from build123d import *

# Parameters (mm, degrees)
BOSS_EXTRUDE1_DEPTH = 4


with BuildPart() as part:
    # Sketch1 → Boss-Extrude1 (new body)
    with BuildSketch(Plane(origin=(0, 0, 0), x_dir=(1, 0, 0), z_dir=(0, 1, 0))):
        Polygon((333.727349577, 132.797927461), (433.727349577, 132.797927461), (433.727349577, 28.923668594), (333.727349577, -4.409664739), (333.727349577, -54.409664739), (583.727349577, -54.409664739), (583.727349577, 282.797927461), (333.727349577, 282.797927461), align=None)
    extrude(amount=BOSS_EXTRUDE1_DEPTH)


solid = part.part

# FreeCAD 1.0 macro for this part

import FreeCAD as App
import Part
import Sketcher

V = App.Vector

doc = App.newDocument("Part")
body = doc.addObject("PartDesign::Body", "Body")

sketch1 = body.newObject("Sketcher::SketchObject", "Sketch")
sketch1.AttachmentSupport = (doc.getObject("XZ_Plane"), [""])
sketch1.MapMode = "FlatFace"
sketch1.addGeometry([
    Part.LineSegment(V(334, -133, 0), V(434, -133, 0)),
    Part.LineSegment(V(434, -133, 0), V(434, -29, 0)),
    Part.LineSegment(V(434, -29, 0), V(334, 4, 0)),
    Part.LineSegment(V(334, 4, 0), V(334, 54, 0)),
    Part.LineSegment(V(334, 54, 0), V(584, 54, 0)),
    Part.LineSegment(V(584, 54, 0), V(584, -283, 0)),
    Part.LineSegment(V(584, -283, 0), V(334, -283, 0)),
    Part.LineSegment(V(334, -283, 0), V(334, -133, 0)),
], False)
sketch1.addConstraint([
    Sketcher.Constraint("Coincident", 0, 2, 1, 1),
    Sketcher.Constraint("Coincident", 1, 2, 2, 1),
    Sketcher.Constraint("Coincident", 2, 2, 3, 1),
    Sketcher.Constraint("Coincident", 3, 2, 4, 1),
    Sketcher.Constraint("Coincident", 4, 2, 5, 1),
    Sketcher.Constraint("Coincident", 5, 2, 6, 1),
    Sketcher.Constraint("Coincident", 6, 2, 7, 1),
    Sketcher.Constraint("Coincident", 7, 2, 0, 1),
    Sketcher.Constraint("Horizontal", 0),
    Sketcher.Constraint("Vertical", 1),
    Sketcher.Constraint("Vertical", 3),
    Sketcher.Constraint("Horizontal", 4),
    Sketcher.Constraint("Vertical", 5),
    Sketcher.Constraint("Horizontal", 6),
    Sketcher.Constraint("Vertical", 7),
    Sketcher.Constraint("Vertical", 3, 2, 6, 2),
    Sketcher.Constraint("DistanceX", 0, 1, 0, 2, 100.0),
    Sketcher.Constraint("DistanceX", 4, 1, 4, 2, 250.0),
    Sketcher.Constraint("DistanceY", 3, 1, 3, 2, 50.0),
    Sketcher.Constraint("DistanceY", 7, 1, 7, 2, 150.0),
    Sketcher.Constraint("DistanceY", 1, 1, 1, 2, 103.874259),
    Sketcher.Constraint("DistanceY", 5, 2, 5, 1, 337.207592),
    Sketcher.Constraint("DistanceX", -1, 1, 0, 2, 433.72735),
    Sketcher.Constraint("DistanceY", 1, 2, -1, 1, 28.923669),
])
pad1 = body.newObject("PartDesign::Pad", "Pad")
pad1.Profile = sketch1
pad1.Length = 4
pad1.Reversed = True

doc.recompute()
